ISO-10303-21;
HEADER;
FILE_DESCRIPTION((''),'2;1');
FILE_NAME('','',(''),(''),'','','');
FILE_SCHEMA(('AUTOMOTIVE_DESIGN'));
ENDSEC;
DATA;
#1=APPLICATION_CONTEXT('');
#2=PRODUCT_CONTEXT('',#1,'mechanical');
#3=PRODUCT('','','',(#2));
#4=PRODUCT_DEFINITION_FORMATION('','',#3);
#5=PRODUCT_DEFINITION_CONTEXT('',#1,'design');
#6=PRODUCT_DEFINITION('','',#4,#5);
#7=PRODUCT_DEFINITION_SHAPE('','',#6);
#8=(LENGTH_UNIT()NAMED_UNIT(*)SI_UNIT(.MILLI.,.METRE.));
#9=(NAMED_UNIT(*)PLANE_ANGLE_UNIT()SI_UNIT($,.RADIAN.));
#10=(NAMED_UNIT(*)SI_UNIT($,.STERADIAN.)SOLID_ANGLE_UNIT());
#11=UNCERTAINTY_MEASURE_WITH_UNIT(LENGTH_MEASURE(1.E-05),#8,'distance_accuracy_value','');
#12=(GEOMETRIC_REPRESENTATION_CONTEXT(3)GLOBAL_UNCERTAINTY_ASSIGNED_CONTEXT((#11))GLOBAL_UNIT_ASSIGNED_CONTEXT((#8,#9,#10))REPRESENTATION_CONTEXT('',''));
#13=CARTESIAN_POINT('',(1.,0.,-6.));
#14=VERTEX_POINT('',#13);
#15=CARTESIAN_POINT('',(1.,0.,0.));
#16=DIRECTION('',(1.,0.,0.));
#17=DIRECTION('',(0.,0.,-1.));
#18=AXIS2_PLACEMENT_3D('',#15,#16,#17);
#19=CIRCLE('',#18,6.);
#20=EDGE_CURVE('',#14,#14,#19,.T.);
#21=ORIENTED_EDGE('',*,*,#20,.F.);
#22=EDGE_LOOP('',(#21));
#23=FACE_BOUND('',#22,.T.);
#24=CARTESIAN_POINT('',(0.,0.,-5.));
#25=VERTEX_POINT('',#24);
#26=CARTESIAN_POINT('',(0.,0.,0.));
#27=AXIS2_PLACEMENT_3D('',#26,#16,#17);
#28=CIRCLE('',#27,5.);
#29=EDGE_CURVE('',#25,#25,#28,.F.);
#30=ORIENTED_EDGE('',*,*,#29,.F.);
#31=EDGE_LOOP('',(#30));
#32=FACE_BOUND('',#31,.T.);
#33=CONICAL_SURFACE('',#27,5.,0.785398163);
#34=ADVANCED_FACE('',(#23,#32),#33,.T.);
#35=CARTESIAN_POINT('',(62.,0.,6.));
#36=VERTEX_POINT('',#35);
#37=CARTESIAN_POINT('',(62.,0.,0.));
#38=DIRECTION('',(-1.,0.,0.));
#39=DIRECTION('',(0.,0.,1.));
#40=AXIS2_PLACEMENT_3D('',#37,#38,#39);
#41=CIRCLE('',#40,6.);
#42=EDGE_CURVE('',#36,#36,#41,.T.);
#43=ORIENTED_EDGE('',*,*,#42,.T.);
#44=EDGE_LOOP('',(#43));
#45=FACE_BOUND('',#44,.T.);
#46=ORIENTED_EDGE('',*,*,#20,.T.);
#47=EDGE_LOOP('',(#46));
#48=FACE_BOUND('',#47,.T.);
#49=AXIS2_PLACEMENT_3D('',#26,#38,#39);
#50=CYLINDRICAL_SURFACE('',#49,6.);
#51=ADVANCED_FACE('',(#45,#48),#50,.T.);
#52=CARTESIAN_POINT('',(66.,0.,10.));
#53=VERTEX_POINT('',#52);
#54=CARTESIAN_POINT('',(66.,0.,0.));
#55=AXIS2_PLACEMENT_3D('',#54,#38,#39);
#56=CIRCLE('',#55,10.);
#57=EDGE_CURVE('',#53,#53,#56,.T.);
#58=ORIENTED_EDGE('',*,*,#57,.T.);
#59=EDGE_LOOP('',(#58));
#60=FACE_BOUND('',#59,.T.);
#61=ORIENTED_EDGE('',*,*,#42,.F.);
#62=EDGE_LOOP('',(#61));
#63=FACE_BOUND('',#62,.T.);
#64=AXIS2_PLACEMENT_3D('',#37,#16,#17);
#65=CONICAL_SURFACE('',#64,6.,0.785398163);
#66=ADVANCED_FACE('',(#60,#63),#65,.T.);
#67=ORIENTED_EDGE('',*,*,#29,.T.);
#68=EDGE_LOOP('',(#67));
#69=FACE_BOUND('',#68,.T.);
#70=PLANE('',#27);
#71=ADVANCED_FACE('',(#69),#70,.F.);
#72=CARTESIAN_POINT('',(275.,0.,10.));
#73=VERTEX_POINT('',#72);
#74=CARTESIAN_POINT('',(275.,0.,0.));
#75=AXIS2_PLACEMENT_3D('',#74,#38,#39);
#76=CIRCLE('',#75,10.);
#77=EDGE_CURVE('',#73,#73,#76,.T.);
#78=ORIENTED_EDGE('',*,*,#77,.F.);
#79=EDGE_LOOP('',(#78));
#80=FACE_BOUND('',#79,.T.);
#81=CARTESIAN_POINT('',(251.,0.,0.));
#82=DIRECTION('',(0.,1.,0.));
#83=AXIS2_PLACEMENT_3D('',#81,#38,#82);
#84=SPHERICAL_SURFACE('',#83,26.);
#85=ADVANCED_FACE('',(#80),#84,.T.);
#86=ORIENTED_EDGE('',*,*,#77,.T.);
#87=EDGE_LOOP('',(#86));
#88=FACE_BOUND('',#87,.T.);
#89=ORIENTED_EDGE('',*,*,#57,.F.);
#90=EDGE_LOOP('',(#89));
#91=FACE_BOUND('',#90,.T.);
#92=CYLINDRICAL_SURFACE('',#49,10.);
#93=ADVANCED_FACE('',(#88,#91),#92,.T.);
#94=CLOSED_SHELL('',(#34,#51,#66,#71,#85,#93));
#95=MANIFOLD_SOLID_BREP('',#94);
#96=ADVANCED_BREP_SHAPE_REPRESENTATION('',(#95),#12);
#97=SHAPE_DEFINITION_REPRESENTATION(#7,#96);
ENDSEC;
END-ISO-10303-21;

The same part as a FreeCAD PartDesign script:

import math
import FreeCAD as App
import Part
import Sketcher
Q = App.Units.Quantity


def edges_at(feature, points):
    """Names of the edges that pass closest to the given points."""
    edges = feature.Shape.Edges
    near = lambda p: min(range(len(edges)), key=lambda i: edges[i].distToShape(Part.Vertex(*p))[0])
    return sorted({f"Edge{near(p) + 1}" for p in points})

doc = App.newDocument("Part")
body = doc.addObject("PartDesign::Body", "Body")

sketch1 = body.newObject("Sketcher::SketchObject", "Sketch")
sketch1.AttachmentSupport = (doc.getObject("XY_Plane"), [""])
sketch1.MapMode = "FlatFace"
sketch1.addGeometry(Part.LineSegment(App.Vector(0, 6, 0), App.Vector(0, 0, 0)), False)
sketch1.addGeometry(Part.LineSegment(App.Vector(0, 0, 0), App.Vector(277, 0, 0)), False)
sketch1.addGeometry(Part.ArcOfCircle(Part.Circle(App.Vector(251, 0, 0), App.Vector(0, 0, 1), 26), math.radians(0), math.radians(22.619865)), False)
sketch1.addGeometry(Part.LineSegment(App.Vector(275, 10, 0), App.Vector(66, 10, 0)), False)
sketch1.addGeometry(Part.LineSegment(App.Vector(66, 10, 0), App.Vector(62, 6, 0)), False)
sketch1.addGeometry(Part.LineSegment(App.Vector(62, 6, 0), App.Vector(0, 6, 0)), False)
sketch1.addConstraint(Sketcher.Constraint("Coincident", 0, 2, 1, 1))
sketch1.addConstraint(Sketcher.Constraint("Coincident", 1, 2, 2, 1))
sketch1.addConstraint(Sketcher.Constraint("Coincident", 2, 2, 3, 1))
sketch1.addConstraint(Sketcher.Constraint("Coincident", 3, 2, 4, 1))
sketch1.addConstraint(Sketcher.Constraint("Coincident", 4, 2, 5, 1))
sketch1.addConstraint(Sketcher.Constraint("Coincident", 5, 2, 0, 1))
sketch1.addConstraint(Sketcher.Constraint("Vertical", 0))
sketch1.addConstraint(Sketcher.Constraint("Horizontal", 1))
sketch1.addConstraint(Sketcher.Constraint("Horizontal", 3))
sketch1.addConstraint(Sketcher.Constraint("Horizontal", 5))
sketch1.addConstraint(Sketcher.Constraint("Coincident", 0, 2, -1, 1))
sketch1.addConstraint(Sketcher.Constraint("PointOnObject", 2, 3, -1))
sketch1.addConstraint(Sketcher.Constraint("Radius", 2, 26.0))
sketch1.addConstraint(Sketcher.Constraint("DistanceX", 1, 1, 1, 2, 277.0))
sketch1.addConstraint(Sketcher.Constraint("DistanceX", 3, 2, 3, 1, 209.0))
sketch1.addConstraint(Sketcher.Constraint("DistanceX", 5, 2, 5, 1, 62.0))
sketch1.addConstraint(Sketcher.Constraint("DistanceY", 0, 2, 0, 1, 6.0))
sketch1.addConstraint(Sketcher.Constraint("Angle", 4, Q("-135 deg")))
revolution = body.newObject("PartDesign::Revolution", "Revolution")
revolution.Profile = sketch1
revolution.ReferenceAxis = (sketch1, ["H_Axis"])
revolution.Angle = 360
doc.recompute()

chamfer = body.newObject("PartDesign::Chamfer", "Chamfer")
chamfer.Base = (revolution, edges_at(revolution, [(0, 0, -6)]))
chamfer.Size = 1

doc.recompute()
